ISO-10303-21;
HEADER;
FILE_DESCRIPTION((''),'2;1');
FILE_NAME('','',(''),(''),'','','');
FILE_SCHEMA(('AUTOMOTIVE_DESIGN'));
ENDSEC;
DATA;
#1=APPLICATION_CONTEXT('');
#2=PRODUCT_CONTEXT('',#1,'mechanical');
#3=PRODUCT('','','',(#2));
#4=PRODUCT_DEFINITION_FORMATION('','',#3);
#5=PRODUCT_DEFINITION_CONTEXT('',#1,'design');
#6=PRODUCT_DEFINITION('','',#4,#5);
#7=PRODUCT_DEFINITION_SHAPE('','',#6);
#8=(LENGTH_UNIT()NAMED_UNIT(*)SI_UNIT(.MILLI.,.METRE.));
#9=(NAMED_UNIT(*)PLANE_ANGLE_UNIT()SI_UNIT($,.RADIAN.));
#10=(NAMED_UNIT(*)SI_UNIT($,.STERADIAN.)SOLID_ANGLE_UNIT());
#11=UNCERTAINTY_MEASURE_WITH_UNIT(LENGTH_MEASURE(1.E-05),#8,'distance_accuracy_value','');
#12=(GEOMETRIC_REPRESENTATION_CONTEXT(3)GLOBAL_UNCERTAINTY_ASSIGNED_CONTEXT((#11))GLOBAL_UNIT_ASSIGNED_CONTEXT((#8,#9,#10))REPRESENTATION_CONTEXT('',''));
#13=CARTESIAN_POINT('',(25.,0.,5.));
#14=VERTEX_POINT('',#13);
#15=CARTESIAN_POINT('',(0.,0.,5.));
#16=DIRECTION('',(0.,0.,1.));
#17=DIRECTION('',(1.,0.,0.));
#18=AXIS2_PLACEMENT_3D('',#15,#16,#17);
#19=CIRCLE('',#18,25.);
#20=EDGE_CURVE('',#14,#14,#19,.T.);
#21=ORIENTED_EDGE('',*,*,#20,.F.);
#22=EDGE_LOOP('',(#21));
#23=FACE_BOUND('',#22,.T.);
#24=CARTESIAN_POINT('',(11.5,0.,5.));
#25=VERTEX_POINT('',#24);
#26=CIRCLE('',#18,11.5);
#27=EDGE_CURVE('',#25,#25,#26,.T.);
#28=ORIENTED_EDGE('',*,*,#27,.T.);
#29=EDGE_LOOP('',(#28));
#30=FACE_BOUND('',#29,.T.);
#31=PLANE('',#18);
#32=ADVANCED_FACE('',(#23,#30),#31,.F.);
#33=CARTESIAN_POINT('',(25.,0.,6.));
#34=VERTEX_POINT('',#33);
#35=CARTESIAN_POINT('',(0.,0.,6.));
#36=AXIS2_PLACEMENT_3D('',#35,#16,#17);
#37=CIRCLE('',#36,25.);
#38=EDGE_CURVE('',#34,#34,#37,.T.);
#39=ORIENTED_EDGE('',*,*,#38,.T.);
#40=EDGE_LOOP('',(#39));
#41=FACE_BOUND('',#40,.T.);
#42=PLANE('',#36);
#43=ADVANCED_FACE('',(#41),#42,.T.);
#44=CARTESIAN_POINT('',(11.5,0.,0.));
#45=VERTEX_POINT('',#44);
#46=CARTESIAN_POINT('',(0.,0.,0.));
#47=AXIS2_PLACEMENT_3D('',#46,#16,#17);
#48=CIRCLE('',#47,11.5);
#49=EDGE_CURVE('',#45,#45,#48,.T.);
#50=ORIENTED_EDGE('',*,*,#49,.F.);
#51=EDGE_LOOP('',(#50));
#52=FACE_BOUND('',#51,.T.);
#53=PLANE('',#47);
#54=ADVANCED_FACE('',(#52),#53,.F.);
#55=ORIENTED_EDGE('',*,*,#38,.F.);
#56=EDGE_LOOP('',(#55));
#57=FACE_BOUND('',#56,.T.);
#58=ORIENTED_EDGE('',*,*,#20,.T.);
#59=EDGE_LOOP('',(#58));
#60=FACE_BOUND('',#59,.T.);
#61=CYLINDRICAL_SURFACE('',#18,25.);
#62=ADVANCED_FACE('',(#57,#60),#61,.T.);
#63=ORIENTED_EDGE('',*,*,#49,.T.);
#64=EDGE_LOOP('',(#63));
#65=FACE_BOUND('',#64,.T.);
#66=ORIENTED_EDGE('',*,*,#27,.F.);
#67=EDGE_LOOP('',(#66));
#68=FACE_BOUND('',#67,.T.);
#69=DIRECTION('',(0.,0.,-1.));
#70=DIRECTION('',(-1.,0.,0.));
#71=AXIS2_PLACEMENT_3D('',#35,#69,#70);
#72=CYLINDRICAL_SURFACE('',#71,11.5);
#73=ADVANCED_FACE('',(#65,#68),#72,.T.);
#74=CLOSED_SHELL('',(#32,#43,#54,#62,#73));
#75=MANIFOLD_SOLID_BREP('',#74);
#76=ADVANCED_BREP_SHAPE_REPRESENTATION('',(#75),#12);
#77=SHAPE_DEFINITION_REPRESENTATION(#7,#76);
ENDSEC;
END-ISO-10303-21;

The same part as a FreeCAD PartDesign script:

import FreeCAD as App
import Part
import Sketcher
from FreeCAD import Vector
Q = App.Units.Quantity

doc = App.newDocument("Part")
params = doc.addObject("Spreadsheet::Sheet", "Params")
for row, (alias, value) in enumerate([
    ("sketch1_diameter", "23 mm"),
    ("pad1_length", "6 mm"),
    ("sketch2_diameter", "50 mm"),
    ("sketch2_diameter2", "15 mm"),
    ("pad2_length", "1 mm"),
], start=1):
    params.set(f"A{row}", alias)
    params.set(f"B{row}", "=" + value)
    params.setAlias(f"B{row}", alias)

body = doc.addObject("PartDesign::Body", "Body")

sketch1 = body.newObject("Sketcher::SketchObject", "Sketch")
sketch1.AttachmentSupport = (doc.getObject("XY_Plane"), [""])
sketch1.MapMode = "FlatFace"
sketch1.addGeometry(Part.Circle(Vector(0, 0, 0), Vector(0, 0, 1), 12), False)
sketch1.addConstraint([
    Sketcher.Constraint("Coincident", 0, 3, -1, 1),
    Sketcher.Constraint("Diameter", 0, Q("23 mm")),
])
sketch1.setExpression("Constraints[1]", "Params.sketch1_diameter")
pad1 = body.newObject("PartDesign::Pad", "Pad")
pad1.Profile = sketch1
pad1.setExpression("Length", "Params.pad1_length")

sketch2 = body.newObject("Sketcher::SketchObject", "Sketch001")
sketch2.AttachmentSupport = (doc.getObject("XY_Plane"), [""])
sketch2.MapMode = "FlatFace"
sketch2.AttachmentOffset = App.Placement(Vector(0, 0, 6), App.Rotation())
sketch2.addGeometry([
    Part.Circle(Vector(0, 0, 0), Vector(0, 0, 1), 25),
    Part.Circle(Vector(0, 0, 0), Vector(0, 0, 1), 8),
], False)
sketch2.addConstraint([
    Sketcher.Constraint("Coincident", 0, 3, -1, 1),
    Sketcher.Constraint("Coincident", 1, 3, -1, 1),
    Sketcher.Constraint("Diameter", 0, Q("50 mm")),
    Sketcher.Constraint("Diameter", 1, Q("15 mm")),
])
sketch2.setExpression("Constraints[2]", "Params.sketch2_diameter")
sketch2.setExpression("Constraints[3]", "Params.sketch2_diameter2")
pad2 = body.newObject("PartDesign::Pad", "Pad001")
pad2.Profile = sketch2
pad2.setExpression("Length", "Params.pad2_length")
pad2.Reversed = True

doc.recompute()
